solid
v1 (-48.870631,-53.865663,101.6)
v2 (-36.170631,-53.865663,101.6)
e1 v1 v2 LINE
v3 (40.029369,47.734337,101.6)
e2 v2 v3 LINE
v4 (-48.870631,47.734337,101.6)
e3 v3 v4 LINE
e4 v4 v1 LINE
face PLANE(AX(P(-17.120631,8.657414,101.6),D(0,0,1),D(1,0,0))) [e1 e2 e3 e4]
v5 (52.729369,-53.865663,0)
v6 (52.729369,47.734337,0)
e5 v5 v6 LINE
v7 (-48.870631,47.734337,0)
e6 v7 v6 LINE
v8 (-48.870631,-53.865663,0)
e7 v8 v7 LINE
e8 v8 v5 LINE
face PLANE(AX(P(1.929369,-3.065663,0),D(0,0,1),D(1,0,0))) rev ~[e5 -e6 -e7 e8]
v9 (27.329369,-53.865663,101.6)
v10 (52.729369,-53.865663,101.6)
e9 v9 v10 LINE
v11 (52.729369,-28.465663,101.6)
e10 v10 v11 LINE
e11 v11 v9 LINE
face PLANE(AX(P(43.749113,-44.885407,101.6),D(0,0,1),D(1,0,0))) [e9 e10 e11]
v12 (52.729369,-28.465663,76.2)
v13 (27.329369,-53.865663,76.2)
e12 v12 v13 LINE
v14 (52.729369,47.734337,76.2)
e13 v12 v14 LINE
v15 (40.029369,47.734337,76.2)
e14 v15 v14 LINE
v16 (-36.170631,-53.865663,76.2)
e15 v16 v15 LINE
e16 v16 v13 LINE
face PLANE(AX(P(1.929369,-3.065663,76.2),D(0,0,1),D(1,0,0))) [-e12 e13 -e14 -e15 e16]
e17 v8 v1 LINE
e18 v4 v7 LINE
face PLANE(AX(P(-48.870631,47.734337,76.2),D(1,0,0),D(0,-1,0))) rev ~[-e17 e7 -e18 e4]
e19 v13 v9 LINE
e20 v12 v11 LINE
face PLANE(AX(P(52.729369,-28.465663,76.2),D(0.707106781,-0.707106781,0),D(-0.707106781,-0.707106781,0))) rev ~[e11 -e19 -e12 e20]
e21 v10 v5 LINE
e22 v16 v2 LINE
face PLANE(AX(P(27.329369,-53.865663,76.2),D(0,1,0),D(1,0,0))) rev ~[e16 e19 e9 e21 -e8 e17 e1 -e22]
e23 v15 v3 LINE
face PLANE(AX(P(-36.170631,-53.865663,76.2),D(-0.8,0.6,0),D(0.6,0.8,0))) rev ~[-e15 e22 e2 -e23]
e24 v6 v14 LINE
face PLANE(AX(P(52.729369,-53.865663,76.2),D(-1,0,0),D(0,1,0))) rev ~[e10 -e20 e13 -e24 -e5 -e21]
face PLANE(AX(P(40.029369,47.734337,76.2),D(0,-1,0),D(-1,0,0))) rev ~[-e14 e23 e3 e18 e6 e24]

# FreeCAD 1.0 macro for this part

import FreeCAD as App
import Part
import Sketcher
from FreeCAD import Vector
Q = App.Units.Quantity

doc = App.newDocument("Part")
body = doc.addObject("PartDesign::Body", "Body")

# Sketch on XY plane
sketch1 = body.newObject("Sketcher::SketchObject", "Sketch")
sketch1.AttachmentSupport = (doc.getObject("XY_Plane"), [""])
sketch1.MapMode = "FlatFace"
sketch1.addGeometry(Part.LineSegment(Vector(-48.870631, 47.734337, 0), Vector(-48.870631, -53.865663, 0)), False)
sketch1.addGeometry(Part.LineSegment(Vector(-48.870631, -53.865663, 0), Vector(52.729369, -53.865663, 0)), False)
sketch1.addGeometry(Part.LineSegment(Vector(52.729369, -53.865663, 0), Vector(52.729369, 47.734337, 0)), False)
sketch1.addGeometry(Part.LineSegment(Vector(52.729369, 47.734337, 0), Vector(-48.870631, 47.734337, 0)), False)
sketch1.addConstraint(Sketcher.Constraint("Coincident", 0, 2, 1, 1))
sketch1.addConstraint(Sketcher.Constraint("Coincident", 1, 2, 2, 1))
sketch1.addConstraint(Sketcher.Constraint("Coincident", 2, 2, 3, 1))
sketch1.addConstraint(Sketcher.Constraint("Coincident", 3, 2, 0, 1))
sketch1.addConstraint(Sketcher.Constraint("Vertical", 0))
sketch1.addConstraint(Sketcher.Constraint("Horizontal", 1))
sketch1.addConstraint(Sketcher.Constraint("Vertical", 2))
sketch1.addConstraint(Sketcher.Constraint("Horizontal", 3))
sketch1.addConstraint(Sketcher.Constraint("Equal", 3, 0))
sketch1.addConstraint(Sketcher.Constraint("DistanceX", 1, 1, 1, 2, Q("4 in")))
sketch1.addConstraint(Sketcher.Constraint("DistanceX", 0, 2, -1, 1, 48.870631))
sketch1.addConstraint(Sketcher.Constraint("DistanceY", 0, 2, -1, 1, 53.865663))
pad1 = body.newObject("PartDesign::Pad", "Pad")
pad1.Profile = sketch1
pad1.Length = Q("3 in")

# Sketch on XY plane
sketch2 = body.newObject("Sketcher::SketchObject", "Sketch001")
sketch2.AttachmentSupport = (doc.getObject("XY_Plane"), [""])
sketch2.MapMode = "FlatFace"
sketch2.AttachmentOffset = App.Placement(Vector(0, 0, 3 * 25.4), App.Rotation())
sketch2.addGeometry(Part.LineSegment(Vector(-48.870631, 47.734337, 0), Vector(-48.870631, -53.865663, 0)), False)
sketch2.addGeometry(Part.LineSegment(Vector(-48.870631, -53.865663, 0), Vector(-36.170631, -53.865663, 0)), False)
sketch2.addGeometry(Part.LineSegment(Vector(-36.170631, -53.865663, 0), Vector(40.029369, 47.734337, 0)), False)
sketch2.addGeometry(Part.LineSegment(Vector(40.029369, 47.734337, 0), Vector(-48.870631, 47.734337, 0)), False)
sketch2.addConstraint(Sketcher.Constraint("Coincident", 0, 2, 1, 1))
sketch2.addConstraint(Sketcher.Constraint("Coincident", 1, 2, 2, 1))
sketch2.addConstraint(Sketcher.Constraint("Coincident", 2, 2, 3, 1))
sketch2.addConstraint(Sketcher.Constraint("Coincident", 3, 2, 0, 1))
sketch2.addConstraint(Sketcher.Constraint("Vertical", 0))
sketch2.addConstraint(Sketcher.Constraint("Horizontal", 1))
sketch2.addConstraint(Sketcher.Constraint("Horizontal", 3))
sketch2.addConstraint(Sketcher.Constraint("DistanceY", 0, 2, 0, 1, Q("4 in")))
sketch2.addConstraint(Sketcher.Constraint("Distance", 2, Q("5 in")))
sketch2.addConstraint(Sketcher.Constraint("DistanceX", 1, 1, 1, 2, Q("0.5 in")))
sketch2.addConstraint(Sketcher.Constraint("DistanceX", 0, 2, -1, 1, 48.870631))
sketch2.addConstraint(Sketcher.Constraint("DistanceY", 0, 2, -1, 1, 53.865663))
pad2 = body.newObject("PartDesign::Pad", "Pad001")
pad2.Profile = sketch2
pad2.Length = Q("1 in")

# Sketch on XY plane
sketch3 = body.newObject("Sketcher::SketchObject", "Sketch002")
sketch3.AttachmentSupport = (doc.getObject("XY_Plane"), [""])
sketch3.MapMode = "FlatFace"
sketch3.AttachmentOffset = App.Placement(Vector(0, 0, 3 * 25.4), App.Rotation())
sketch3.addGeometry(Part.LineSegment(Vector(52.729369, -28.465663, 0), Vector(27.329369, -53.865663, 0)), False)
sketch3.addGeometry(Part.LineSegment(Vector(27.329369, -53.865663, 0), Vector(52.729369, -53.865663, 0)), False)
sketch3.addGeometry(Part.LineSegment(Vector(52.729369, -53.865663, 0), Vector(52.729369, -28.465663, 0)), False)
sketch3.addConstraint(Sketcher.Constraint("Coincident", 0, 2, 1, 1))
sketch3.addConstraint(Sketcher.Constraint("Coincident", 1, 2, 2, 1))
sketch3.addConstraint(Sketcher.Constraint("Coincident", 2, 2, 0, 1))
sketch3.addConstraint(Sketcher.Constraint("Horizontal", 1))
sketch3.addConstraint(Sketcher.Constraint("Vertical", 2))
sketch3.addConstraint(Sketcher.Constraint("Equal", 1, 2))
sketch3.addConstraint(Sketcher.Constraint("DistanceX", 1, 1, 1, 2, Q("1 in")))
sketch3.addConstraint(Sketcher.Constraint("DistanceX", -1, 1, 0, 2, 27.329369))
sketch3.addConstraint(Sketcher.Constraint("DistanceY", 0, 2, -1, 1, 53.865663))
pad3 = body.newObject("PartDesign::Pad", "Pad002")
pad3.Profile = sketch3
pad3.Length = Q("1 in")

doc.recompute()
